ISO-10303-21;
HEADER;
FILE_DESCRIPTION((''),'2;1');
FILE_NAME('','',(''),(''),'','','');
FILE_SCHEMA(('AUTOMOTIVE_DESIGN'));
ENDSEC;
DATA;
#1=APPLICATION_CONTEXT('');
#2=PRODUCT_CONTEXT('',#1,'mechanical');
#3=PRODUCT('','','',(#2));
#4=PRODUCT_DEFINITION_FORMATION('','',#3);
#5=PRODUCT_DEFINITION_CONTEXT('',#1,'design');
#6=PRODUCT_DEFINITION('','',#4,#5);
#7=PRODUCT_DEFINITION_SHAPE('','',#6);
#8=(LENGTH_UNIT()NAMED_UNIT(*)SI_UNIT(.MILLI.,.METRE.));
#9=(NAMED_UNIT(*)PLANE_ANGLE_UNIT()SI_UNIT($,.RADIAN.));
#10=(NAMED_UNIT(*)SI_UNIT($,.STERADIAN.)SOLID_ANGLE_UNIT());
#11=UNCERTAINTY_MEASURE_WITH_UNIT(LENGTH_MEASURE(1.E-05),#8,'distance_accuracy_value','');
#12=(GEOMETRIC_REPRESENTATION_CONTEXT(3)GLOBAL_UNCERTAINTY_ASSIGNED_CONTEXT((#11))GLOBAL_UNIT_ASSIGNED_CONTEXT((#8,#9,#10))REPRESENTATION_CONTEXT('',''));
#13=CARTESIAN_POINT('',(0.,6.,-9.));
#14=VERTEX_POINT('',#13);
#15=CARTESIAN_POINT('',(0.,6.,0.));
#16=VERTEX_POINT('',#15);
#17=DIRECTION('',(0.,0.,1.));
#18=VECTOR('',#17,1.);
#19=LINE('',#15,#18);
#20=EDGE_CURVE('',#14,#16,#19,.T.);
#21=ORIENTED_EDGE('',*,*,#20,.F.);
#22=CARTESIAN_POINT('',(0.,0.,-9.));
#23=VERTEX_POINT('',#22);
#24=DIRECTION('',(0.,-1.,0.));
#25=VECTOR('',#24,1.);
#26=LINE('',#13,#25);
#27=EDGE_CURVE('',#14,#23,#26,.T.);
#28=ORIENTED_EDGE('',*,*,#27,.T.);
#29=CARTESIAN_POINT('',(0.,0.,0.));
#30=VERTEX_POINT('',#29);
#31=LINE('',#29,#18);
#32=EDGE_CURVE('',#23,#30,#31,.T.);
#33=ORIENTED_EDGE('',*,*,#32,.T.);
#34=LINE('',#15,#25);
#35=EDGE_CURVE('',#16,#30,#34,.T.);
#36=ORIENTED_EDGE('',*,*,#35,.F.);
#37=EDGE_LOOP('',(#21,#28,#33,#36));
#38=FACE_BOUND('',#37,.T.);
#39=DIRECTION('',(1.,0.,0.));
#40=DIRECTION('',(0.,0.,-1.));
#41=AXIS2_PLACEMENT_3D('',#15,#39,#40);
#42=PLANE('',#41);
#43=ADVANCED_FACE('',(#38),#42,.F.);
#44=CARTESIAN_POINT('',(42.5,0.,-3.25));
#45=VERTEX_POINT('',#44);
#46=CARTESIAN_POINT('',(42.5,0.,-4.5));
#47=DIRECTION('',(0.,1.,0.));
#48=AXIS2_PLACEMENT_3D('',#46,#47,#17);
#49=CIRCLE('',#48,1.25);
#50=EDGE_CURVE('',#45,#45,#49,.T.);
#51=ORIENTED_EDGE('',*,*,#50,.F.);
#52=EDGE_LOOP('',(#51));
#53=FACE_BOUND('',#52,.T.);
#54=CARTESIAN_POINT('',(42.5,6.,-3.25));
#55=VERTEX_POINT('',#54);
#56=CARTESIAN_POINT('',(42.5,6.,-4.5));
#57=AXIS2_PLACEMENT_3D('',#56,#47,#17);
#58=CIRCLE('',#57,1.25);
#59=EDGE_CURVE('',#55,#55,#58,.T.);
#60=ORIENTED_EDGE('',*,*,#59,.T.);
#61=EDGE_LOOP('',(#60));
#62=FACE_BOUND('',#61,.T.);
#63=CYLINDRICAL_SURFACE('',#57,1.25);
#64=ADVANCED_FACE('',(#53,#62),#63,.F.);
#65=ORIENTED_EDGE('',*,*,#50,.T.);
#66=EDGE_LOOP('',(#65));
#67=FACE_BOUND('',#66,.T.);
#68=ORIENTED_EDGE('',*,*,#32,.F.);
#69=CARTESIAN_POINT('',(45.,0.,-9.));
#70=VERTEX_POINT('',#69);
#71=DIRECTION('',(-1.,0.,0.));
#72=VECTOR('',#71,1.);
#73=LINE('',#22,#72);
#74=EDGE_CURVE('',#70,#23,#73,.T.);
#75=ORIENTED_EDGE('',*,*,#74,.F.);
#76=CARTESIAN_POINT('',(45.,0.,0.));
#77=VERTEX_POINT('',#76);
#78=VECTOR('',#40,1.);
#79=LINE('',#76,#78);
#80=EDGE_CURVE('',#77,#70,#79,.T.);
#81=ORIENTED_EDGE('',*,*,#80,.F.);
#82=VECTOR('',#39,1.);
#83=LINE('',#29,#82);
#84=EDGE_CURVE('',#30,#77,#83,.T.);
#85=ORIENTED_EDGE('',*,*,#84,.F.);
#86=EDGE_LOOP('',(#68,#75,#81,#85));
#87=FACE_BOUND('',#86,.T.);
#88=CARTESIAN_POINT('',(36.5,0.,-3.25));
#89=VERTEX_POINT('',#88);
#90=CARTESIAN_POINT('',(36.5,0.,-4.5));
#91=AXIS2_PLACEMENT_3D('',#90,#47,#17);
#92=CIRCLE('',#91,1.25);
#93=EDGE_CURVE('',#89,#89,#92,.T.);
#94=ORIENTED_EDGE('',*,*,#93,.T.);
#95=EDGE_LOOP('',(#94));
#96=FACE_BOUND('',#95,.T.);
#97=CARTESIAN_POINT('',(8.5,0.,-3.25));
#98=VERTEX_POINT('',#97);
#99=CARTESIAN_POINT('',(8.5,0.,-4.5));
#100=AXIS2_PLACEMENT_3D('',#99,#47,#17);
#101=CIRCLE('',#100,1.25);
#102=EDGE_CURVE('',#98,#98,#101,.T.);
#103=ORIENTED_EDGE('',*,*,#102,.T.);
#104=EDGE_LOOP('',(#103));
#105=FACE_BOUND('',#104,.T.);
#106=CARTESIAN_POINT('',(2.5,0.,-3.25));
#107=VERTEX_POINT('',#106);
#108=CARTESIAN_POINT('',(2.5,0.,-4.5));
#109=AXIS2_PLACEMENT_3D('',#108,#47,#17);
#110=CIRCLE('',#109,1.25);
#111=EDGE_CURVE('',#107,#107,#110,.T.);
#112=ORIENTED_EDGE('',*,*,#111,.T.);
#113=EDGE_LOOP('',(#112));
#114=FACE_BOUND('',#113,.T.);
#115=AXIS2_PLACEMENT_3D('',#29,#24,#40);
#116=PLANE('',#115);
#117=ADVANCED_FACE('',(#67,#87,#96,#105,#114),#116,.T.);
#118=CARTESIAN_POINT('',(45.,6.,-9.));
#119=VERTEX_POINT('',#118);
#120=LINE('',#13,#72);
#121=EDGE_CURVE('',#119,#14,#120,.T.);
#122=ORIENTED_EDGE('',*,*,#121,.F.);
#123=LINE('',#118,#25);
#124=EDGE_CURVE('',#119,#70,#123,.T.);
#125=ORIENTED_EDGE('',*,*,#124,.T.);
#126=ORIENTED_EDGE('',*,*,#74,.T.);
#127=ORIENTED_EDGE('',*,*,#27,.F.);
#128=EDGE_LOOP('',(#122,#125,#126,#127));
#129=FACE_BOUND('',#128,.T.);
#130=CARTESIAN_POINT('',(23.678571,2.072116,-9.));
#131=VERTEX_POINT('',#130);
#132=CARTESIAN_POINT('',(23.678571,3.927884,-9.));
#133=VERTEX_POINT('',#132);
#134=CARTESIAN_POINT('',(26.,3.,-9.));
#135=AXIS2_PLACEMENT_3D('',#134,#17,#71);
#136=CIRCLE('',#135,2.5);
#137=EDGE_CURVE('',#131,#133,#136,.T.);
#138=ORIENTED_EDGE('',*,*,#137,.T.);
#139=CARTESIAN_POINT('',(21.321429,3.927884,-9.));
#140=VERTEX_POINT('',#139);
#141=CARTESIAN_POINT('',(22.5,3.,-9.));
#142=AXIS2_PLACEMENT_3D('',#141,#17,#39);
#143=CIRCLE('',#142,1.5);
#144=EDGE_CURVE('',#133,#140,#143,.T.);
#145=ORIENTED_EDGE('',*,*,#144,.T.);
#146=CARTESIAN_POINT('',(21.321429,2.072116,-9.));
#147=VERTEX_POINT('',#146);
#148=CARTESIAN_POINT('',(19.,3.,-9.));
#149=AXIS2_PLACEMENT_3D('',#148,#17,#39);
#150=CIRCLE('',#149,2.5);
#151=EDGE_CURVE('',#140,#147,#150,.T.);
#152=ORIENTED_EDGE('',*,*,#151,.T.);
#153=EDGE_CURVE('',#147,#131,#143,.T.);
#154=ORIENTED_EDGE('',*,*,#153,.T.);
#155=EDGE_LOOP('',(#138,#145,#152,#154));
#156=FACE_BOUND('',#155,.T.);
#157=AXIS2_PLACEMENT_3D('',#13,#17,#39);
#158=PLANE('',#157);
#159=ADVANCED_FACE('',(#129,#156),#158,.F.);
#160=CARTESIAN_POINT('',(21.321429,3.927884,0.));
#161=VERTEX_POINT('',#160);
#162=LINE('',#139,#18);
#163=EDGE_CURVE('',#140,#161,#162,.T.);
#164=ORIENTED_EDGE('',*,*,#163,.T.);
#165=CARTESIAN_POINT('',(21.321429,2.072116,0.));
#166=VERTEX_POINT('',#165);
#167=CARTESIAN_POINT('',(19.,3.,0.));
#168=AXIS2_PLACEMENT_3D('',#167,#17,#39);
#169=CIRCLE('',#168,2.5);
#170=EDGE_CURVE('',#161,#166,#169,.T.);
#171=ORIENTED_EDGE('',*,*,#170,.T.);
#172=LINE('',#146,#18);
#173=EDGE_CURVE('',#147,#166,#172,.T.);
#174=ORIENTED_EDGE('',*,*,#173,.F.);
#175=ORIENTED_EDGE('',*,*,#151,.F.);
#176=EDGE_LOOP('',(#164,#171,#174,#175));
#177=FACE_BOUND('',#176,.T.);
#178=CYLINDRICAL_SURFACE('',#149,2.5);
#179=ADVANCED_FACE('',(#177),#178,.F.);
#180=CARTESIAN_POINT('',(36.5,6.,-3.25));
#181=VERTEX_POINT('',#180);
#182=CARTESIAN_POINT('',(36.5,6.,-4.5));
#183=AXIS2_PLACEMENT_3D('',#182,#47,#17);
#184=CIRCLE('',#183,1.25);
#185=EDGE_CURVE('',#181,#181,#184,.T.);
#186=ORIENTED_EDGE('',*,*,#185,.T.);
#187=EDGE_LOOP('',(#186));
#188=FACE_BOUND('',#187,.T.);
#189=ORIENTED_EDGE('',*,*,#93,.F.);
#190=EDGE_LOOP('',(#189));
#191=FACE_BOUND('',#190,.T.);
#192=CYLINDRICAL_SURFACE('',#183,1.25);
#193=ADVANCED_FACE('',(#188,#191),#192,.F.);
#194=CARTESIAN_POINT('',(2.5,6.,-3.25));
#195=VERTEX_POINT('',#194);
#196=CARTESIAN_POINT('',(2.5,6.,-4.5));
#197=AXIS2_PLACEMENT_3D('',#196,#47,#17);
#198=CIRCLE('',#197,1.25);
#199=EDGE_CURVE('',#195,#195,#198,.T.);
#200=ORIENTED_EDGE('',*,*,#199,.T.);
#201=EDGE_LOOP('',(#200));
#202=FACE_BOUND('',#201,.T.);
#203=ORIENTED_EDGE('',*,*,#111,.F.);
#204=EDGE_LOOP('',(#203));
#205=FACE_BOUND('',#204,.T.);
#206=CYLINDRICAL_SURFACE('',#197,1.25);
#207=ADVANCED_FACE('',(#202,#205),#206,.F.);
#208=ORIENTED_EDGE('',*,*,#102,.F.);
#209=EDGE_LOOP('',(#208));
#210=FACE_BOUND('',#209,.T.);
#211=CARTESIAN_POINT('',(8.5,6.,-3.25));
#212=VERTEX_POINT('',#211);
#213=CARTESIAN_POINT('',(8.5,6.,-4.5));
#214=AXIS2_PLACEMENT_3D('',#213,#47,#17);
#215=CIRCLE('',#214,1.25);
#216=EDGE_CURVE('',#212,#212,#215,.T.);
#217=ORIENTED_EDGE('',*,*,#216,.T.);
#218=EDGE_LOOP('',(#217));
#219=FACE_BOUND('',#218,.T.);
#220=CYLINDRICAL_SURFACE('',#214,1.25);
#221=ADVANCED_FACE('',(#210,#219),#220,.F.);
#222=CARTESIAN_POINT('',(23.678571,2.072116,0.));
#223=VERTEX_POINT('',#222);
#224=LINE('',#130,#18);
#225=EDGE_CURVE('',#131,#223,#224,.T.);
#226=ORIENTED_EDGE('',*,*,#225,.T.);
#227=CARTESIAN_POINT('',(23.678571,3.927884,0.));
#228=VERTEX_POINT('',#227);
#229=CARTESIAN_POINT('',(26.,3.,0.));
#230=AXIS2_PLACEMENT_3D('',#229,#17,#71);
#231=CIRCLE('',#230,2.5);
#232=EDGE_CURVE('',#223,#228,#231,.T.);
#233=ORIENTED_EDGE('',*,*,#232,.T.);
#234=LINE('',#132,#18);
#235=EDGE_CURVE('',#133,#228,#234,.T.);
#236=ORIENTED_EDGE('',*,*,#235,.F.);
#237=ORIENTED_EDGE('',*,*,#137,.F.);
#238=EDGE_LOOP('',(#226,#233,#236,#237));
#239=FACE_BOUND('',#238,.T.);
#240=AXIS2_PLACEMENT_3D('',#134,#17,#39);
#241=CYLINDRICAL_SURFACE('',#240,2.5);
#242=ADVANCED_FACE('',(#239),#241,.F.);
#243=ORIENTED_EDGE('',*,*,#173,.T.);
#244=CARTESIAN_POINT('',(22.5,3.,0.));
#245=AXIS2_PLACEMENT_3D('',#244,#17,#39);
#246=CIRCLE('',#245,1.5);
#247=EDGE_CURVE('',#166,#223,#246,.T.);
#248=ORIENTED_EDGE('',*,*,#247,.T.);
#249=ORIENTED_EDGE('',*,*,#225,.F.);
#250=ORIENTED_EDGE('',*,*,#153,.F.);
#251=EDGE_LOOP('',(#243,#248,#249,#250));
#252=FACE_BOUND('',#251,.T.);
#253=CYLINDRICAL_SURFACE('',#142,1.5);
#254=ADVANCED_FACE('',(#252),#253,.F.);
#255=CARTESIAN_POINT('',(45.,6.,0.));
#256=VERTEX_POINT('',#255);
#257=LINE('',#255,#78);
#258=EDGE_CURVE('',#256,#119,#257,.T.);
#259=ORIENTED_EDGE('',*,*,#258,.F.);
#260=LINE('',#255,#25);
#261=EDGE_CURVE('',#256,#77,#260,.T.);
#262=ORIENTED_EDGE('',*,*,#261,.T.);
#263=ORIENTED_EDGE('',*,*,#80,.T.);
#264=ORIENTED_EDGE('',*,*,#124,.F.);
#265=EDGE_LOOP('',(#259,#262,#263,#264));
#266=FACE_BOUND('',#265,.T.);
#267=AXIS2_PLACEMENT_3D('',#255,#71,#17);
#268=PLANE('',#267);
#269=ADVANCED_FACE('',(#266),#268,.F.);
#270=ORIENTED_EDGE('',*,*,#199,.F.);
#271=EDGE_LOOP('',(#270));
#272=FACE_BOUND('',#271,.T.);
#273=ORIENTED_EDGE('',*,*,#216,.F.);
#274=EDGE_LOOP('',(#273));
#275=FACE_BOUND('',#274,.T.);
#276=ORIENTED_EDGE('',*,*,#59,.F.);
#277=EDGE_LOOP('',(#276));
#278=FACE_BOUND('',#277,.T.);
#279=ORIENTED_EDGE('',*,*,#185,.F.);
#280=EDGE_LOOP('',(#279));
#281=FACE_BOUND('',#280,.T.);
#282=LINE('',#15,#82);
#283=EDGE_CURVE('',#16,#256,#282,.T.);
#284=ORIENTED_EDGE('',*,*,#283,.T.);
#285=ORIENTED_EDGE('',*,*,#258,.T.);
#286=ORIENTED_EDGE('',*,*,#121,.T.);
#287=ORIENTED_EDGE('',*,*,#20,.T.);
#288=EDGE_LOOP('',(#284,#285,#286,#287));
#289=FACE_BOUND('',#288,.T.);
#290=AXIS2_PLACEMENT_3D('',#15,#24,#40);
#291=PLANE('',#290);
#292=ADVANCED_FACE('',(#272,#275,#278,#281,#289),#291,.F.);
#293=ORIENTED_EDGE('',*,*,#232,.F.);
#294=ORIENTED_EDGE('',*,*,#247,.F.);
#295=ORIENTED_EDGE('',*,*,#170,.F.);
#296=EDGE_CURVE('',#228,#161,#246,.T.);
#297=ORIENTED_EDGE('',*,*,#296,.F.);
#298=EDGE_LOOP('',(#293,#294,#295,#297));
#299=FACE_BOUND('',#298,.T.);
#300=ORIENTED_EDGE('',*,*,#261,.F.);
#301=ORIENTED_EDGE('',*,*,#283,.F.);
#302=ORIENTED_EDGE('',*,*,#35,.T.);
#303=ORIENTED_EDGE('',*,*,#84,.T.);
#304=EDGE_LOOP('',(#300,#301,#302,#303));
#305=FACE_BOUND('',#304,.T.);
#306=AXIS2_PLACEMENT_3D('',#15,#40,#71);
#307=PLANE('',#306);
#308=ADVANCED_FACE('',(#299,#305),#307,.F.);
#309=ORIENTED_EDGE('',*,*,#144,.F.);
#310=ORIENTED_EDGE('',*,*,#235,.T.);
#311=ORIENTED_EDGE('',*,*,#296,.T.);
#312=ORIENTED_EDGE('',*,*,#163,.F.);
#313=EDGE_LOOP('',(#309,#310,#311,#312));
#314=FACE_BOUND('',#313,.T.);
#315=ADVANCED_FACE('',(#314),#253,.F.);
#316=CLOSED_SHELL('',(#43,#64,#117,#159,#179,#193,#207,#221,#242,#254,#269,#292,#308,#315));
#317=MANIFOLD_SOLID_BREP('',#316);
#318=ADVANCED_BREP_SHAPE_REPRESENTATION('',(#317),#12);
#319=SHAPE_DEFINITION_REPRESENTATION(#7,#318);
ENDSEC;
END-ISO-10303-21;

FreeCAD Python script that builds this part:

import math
import FreeCAD as App
import Part
import Sketcher

V = App.Vector

doc = App.newDocument("Part")
body = doc.addObject("PartDesign::Body", "Body")

sketch1 = body.newObject("Sketcher::SketchObject", "Sketch")
sketch1.AttachmentSupport = (doc.getObject("XZ_Plane"), [""])
sketch1.MapMode = "FlatFace"
sketch1.addGeometry(Part.LineSegment(V(0, -9, 0), V(0, 0, 0)), False)
sketch1.addGeometry(Part.LineSegment(V(0, 0, 0), V(45, 0, 0)), False)
sketch1.addGeometry(Part.LineSegment(V(45, 0, 0), V(45, -9, 0)), False)
sketch1.addGeometry(Part.LineSegment(V(45, -9, 0), V(0, -9, 0)), False)
sketch1.addConstraint(Sketcher.Constraint("Coincident", 0, 2, 1, 1))
sketch1.addConstraint(Sketcher.Constraint("Coincident", 1, 2, 2, 1))
sketch1.addConstraint(Sketcher.Constraint("Coincident", 2, 2, 3, 1))
sketch1.addConstraint(Sketcher.Constraint("Coincident", 3, 2, 0, 1))
sketch1.addConstraint(Sketcher.Constraint("Vertical", 0))
sketch1.addConstraint(Sketcher.Constraint("Horizontal", 1))
sketch1.addConstraint(Sketcher.Constraint("Vertical", 2))
sketch1.addConstraint(Sketcher.Constraint("Horizontal", 3))
sketch1.addConstraint(Sketcher.Constraint("Coincident", 0, 2, -1, 1))
sketch1.addConstraint(Sketcher.Constraint("DistanceX", 1, 1, 1, 2, 45.0))
sketch1.addConstraint(Sketcher.Constraint("DistanceY", 0, 1, 0, 2, 9.0))
pad1 = body.newObject("PartDesign::Pad", "Pad")
pad1.Profile = sketch1
pad1.Length = 6
pad1.Reversed = True

sketch2 = body.newObject("Sketcher::SketchObject", "Sketch001")
sketch2.AttachmentSupport = (doc.getObject("XZ_Plane"), [""])
sketch2.MapMode = "FlatFace"
sketch2.AttachmentOffset = App.Placement(V(0, 0, -6), App.Rotation())
sketch2.addGeometry(Part.Circle(V(2.5, -4.5, 0), V(0, 0, 1), 1.2), False)
sketch2.addGeometry(Part.Circle(V(8.5, -4.5, 0), V(0, 0, 1), 1.2), False)
sketch2.addGeometry(Part.Circle(V(36.5, -4.5, 0), V(0, 0, 1), 1.2), False)
sketch2.addGeometry(Part.Circle(V(42.5, -4.5, 0), V(0, 0, 1), 1.2), False)
sketch2.addConstraint(Sketcher.Constraint("Equal", 0, 1))
sketch2.addConstraint(Sketcher.Constraint("Equal", 1, 2))
sketch2.addConstraint(Sketcher.Constraint("Equal", 2, 3))
sketch2.addConstraint(Sketcher.Constraint("Horizontal", 0, 3, 1, 3))
sketch2.addConstraint(Sketcher.Constraint("Horizontal", 1, 3, 2, 3))
sketch2.addConstraint(Sketcher.Constraint("Horizontal", 2, 3, 3, 3))
sketch2.addConstraint(Sketcher.Constraint("Diameter", 0, 2.5))
sketch2.addConstraint(Sketcher.Constraint("DistanceX", 0, 3, 1, 3, 6.0))
sketch2.addConstraint(Sketcher.Constraint("DistanceX", 1, 3, 2, 3, 28.0))
sketch2.addConstraint(Sketcher.Constraint("DistanceX", 2, 3, 3, 3, 6.0))
sketch2.addConstraint(Sketcher.Constraint("DistanceX", -1, 1, 0, 3, 2.5))
sketch2.addConstraint(Sketcher.Constraint("DistanceY", 0, 3, -1, 1, 4.5))
doc.recompute()
hole = body.newObject("PartDesign::Hole", "Hole")
hole.Profile = sketch2
hole.ThreadType = "None"
hole.Diameter = 2.5
hole.DepthType = "ThroughAll"
hole.Reversed = True

sketch3 = body.newObject("Sketcher::SketchObject", "Sketch002")
sketch3.AttachmentSupport = (doc.getObject("XY_Plane"), [""])
sketch3.MapMode = "FlatFace"
sketch3.addGeometry(Part.ArcOfCircle(Part.Circle(V(22.5, 3, 0), V(0, 0, 1), 1.5), math.radians(-142), math.radians(-38)), False)
sketch3.addGeometry(Part.ArcOfCircle(Part.Circle(V(26, 3, 0), V(0, 0, 1), 2.5), math.radians(-158), math.radians(158)), False)
sketch3.addGeometry(Part.ArcOfCircle(Part.Circle(V(22.5, 3, 0), V(0, 0, 1), 1.5), math.radians(38), math.radians(142)), False)
sketch3.addGeometry(Part.ArcOfCircle(Part.Circle(V(19, 3, 0), V(0, 0, 1), 2.5), math.radians(22), math.radians(338)), False)
sketch3.addConstraint(Sketcher.Constraint("Coincident", 0, 2, 1, 1))
sketch3.addConstraint(Sketcher.Constraint("Coincident", 1, 2, 2, 1))
sketch3.addConstraint(Sketcher.Constraint("Coincident", 2, 2, 3, 1))
sketch3.addConstraint(Sketcher.Constraint("Coincident", 3, 2, 0, 1))
sketch3.addConstraint(Sketcher.Constraint("Coincident", 2, 3, 0, 3))
sketch3.addConstraint(Sketcher.Constraint("Equal", 0, 2))
sketch3.addConstraint(Sketcher.Constraint("Equal", 1, 3))
sketch3.addConstraint(Sketcher.Constraint("Horizontal", 0, 3, 1, 3))
sketch3.addConstraint(Sketcher.Constraint("Horizontal", 2, 3, 3, 3))
sketch3.addConstraint(Sketcher.Constraint("Horizontal", 1, 2, 2, 2))
sketch3.addConstraint(Sketcher.Constraint("Radius", 0, 1.5))
sketch3.addConstraint(Sketcher.Constraint("Radius", 1, 2.5))
sketch3.addConstraint(Sketcher.Constraint("DistanceY", -1, 1, 0, 3, 3.0))
sketch3.addConstraint(Sketcher.Constraint("DistanceX", -1, 1, 1, 3, 26.0))
sketch3.addConstraint(Sketcher.Constraint("DistanceX", -1, 1, 3, 3, 19.0))
pocket1 = body.newObject("PartDesign::Pocket", "Pocket")
pocket1.Profile = sketch3
pocket1.Type = "ThroughAll"

doc.recompute()
